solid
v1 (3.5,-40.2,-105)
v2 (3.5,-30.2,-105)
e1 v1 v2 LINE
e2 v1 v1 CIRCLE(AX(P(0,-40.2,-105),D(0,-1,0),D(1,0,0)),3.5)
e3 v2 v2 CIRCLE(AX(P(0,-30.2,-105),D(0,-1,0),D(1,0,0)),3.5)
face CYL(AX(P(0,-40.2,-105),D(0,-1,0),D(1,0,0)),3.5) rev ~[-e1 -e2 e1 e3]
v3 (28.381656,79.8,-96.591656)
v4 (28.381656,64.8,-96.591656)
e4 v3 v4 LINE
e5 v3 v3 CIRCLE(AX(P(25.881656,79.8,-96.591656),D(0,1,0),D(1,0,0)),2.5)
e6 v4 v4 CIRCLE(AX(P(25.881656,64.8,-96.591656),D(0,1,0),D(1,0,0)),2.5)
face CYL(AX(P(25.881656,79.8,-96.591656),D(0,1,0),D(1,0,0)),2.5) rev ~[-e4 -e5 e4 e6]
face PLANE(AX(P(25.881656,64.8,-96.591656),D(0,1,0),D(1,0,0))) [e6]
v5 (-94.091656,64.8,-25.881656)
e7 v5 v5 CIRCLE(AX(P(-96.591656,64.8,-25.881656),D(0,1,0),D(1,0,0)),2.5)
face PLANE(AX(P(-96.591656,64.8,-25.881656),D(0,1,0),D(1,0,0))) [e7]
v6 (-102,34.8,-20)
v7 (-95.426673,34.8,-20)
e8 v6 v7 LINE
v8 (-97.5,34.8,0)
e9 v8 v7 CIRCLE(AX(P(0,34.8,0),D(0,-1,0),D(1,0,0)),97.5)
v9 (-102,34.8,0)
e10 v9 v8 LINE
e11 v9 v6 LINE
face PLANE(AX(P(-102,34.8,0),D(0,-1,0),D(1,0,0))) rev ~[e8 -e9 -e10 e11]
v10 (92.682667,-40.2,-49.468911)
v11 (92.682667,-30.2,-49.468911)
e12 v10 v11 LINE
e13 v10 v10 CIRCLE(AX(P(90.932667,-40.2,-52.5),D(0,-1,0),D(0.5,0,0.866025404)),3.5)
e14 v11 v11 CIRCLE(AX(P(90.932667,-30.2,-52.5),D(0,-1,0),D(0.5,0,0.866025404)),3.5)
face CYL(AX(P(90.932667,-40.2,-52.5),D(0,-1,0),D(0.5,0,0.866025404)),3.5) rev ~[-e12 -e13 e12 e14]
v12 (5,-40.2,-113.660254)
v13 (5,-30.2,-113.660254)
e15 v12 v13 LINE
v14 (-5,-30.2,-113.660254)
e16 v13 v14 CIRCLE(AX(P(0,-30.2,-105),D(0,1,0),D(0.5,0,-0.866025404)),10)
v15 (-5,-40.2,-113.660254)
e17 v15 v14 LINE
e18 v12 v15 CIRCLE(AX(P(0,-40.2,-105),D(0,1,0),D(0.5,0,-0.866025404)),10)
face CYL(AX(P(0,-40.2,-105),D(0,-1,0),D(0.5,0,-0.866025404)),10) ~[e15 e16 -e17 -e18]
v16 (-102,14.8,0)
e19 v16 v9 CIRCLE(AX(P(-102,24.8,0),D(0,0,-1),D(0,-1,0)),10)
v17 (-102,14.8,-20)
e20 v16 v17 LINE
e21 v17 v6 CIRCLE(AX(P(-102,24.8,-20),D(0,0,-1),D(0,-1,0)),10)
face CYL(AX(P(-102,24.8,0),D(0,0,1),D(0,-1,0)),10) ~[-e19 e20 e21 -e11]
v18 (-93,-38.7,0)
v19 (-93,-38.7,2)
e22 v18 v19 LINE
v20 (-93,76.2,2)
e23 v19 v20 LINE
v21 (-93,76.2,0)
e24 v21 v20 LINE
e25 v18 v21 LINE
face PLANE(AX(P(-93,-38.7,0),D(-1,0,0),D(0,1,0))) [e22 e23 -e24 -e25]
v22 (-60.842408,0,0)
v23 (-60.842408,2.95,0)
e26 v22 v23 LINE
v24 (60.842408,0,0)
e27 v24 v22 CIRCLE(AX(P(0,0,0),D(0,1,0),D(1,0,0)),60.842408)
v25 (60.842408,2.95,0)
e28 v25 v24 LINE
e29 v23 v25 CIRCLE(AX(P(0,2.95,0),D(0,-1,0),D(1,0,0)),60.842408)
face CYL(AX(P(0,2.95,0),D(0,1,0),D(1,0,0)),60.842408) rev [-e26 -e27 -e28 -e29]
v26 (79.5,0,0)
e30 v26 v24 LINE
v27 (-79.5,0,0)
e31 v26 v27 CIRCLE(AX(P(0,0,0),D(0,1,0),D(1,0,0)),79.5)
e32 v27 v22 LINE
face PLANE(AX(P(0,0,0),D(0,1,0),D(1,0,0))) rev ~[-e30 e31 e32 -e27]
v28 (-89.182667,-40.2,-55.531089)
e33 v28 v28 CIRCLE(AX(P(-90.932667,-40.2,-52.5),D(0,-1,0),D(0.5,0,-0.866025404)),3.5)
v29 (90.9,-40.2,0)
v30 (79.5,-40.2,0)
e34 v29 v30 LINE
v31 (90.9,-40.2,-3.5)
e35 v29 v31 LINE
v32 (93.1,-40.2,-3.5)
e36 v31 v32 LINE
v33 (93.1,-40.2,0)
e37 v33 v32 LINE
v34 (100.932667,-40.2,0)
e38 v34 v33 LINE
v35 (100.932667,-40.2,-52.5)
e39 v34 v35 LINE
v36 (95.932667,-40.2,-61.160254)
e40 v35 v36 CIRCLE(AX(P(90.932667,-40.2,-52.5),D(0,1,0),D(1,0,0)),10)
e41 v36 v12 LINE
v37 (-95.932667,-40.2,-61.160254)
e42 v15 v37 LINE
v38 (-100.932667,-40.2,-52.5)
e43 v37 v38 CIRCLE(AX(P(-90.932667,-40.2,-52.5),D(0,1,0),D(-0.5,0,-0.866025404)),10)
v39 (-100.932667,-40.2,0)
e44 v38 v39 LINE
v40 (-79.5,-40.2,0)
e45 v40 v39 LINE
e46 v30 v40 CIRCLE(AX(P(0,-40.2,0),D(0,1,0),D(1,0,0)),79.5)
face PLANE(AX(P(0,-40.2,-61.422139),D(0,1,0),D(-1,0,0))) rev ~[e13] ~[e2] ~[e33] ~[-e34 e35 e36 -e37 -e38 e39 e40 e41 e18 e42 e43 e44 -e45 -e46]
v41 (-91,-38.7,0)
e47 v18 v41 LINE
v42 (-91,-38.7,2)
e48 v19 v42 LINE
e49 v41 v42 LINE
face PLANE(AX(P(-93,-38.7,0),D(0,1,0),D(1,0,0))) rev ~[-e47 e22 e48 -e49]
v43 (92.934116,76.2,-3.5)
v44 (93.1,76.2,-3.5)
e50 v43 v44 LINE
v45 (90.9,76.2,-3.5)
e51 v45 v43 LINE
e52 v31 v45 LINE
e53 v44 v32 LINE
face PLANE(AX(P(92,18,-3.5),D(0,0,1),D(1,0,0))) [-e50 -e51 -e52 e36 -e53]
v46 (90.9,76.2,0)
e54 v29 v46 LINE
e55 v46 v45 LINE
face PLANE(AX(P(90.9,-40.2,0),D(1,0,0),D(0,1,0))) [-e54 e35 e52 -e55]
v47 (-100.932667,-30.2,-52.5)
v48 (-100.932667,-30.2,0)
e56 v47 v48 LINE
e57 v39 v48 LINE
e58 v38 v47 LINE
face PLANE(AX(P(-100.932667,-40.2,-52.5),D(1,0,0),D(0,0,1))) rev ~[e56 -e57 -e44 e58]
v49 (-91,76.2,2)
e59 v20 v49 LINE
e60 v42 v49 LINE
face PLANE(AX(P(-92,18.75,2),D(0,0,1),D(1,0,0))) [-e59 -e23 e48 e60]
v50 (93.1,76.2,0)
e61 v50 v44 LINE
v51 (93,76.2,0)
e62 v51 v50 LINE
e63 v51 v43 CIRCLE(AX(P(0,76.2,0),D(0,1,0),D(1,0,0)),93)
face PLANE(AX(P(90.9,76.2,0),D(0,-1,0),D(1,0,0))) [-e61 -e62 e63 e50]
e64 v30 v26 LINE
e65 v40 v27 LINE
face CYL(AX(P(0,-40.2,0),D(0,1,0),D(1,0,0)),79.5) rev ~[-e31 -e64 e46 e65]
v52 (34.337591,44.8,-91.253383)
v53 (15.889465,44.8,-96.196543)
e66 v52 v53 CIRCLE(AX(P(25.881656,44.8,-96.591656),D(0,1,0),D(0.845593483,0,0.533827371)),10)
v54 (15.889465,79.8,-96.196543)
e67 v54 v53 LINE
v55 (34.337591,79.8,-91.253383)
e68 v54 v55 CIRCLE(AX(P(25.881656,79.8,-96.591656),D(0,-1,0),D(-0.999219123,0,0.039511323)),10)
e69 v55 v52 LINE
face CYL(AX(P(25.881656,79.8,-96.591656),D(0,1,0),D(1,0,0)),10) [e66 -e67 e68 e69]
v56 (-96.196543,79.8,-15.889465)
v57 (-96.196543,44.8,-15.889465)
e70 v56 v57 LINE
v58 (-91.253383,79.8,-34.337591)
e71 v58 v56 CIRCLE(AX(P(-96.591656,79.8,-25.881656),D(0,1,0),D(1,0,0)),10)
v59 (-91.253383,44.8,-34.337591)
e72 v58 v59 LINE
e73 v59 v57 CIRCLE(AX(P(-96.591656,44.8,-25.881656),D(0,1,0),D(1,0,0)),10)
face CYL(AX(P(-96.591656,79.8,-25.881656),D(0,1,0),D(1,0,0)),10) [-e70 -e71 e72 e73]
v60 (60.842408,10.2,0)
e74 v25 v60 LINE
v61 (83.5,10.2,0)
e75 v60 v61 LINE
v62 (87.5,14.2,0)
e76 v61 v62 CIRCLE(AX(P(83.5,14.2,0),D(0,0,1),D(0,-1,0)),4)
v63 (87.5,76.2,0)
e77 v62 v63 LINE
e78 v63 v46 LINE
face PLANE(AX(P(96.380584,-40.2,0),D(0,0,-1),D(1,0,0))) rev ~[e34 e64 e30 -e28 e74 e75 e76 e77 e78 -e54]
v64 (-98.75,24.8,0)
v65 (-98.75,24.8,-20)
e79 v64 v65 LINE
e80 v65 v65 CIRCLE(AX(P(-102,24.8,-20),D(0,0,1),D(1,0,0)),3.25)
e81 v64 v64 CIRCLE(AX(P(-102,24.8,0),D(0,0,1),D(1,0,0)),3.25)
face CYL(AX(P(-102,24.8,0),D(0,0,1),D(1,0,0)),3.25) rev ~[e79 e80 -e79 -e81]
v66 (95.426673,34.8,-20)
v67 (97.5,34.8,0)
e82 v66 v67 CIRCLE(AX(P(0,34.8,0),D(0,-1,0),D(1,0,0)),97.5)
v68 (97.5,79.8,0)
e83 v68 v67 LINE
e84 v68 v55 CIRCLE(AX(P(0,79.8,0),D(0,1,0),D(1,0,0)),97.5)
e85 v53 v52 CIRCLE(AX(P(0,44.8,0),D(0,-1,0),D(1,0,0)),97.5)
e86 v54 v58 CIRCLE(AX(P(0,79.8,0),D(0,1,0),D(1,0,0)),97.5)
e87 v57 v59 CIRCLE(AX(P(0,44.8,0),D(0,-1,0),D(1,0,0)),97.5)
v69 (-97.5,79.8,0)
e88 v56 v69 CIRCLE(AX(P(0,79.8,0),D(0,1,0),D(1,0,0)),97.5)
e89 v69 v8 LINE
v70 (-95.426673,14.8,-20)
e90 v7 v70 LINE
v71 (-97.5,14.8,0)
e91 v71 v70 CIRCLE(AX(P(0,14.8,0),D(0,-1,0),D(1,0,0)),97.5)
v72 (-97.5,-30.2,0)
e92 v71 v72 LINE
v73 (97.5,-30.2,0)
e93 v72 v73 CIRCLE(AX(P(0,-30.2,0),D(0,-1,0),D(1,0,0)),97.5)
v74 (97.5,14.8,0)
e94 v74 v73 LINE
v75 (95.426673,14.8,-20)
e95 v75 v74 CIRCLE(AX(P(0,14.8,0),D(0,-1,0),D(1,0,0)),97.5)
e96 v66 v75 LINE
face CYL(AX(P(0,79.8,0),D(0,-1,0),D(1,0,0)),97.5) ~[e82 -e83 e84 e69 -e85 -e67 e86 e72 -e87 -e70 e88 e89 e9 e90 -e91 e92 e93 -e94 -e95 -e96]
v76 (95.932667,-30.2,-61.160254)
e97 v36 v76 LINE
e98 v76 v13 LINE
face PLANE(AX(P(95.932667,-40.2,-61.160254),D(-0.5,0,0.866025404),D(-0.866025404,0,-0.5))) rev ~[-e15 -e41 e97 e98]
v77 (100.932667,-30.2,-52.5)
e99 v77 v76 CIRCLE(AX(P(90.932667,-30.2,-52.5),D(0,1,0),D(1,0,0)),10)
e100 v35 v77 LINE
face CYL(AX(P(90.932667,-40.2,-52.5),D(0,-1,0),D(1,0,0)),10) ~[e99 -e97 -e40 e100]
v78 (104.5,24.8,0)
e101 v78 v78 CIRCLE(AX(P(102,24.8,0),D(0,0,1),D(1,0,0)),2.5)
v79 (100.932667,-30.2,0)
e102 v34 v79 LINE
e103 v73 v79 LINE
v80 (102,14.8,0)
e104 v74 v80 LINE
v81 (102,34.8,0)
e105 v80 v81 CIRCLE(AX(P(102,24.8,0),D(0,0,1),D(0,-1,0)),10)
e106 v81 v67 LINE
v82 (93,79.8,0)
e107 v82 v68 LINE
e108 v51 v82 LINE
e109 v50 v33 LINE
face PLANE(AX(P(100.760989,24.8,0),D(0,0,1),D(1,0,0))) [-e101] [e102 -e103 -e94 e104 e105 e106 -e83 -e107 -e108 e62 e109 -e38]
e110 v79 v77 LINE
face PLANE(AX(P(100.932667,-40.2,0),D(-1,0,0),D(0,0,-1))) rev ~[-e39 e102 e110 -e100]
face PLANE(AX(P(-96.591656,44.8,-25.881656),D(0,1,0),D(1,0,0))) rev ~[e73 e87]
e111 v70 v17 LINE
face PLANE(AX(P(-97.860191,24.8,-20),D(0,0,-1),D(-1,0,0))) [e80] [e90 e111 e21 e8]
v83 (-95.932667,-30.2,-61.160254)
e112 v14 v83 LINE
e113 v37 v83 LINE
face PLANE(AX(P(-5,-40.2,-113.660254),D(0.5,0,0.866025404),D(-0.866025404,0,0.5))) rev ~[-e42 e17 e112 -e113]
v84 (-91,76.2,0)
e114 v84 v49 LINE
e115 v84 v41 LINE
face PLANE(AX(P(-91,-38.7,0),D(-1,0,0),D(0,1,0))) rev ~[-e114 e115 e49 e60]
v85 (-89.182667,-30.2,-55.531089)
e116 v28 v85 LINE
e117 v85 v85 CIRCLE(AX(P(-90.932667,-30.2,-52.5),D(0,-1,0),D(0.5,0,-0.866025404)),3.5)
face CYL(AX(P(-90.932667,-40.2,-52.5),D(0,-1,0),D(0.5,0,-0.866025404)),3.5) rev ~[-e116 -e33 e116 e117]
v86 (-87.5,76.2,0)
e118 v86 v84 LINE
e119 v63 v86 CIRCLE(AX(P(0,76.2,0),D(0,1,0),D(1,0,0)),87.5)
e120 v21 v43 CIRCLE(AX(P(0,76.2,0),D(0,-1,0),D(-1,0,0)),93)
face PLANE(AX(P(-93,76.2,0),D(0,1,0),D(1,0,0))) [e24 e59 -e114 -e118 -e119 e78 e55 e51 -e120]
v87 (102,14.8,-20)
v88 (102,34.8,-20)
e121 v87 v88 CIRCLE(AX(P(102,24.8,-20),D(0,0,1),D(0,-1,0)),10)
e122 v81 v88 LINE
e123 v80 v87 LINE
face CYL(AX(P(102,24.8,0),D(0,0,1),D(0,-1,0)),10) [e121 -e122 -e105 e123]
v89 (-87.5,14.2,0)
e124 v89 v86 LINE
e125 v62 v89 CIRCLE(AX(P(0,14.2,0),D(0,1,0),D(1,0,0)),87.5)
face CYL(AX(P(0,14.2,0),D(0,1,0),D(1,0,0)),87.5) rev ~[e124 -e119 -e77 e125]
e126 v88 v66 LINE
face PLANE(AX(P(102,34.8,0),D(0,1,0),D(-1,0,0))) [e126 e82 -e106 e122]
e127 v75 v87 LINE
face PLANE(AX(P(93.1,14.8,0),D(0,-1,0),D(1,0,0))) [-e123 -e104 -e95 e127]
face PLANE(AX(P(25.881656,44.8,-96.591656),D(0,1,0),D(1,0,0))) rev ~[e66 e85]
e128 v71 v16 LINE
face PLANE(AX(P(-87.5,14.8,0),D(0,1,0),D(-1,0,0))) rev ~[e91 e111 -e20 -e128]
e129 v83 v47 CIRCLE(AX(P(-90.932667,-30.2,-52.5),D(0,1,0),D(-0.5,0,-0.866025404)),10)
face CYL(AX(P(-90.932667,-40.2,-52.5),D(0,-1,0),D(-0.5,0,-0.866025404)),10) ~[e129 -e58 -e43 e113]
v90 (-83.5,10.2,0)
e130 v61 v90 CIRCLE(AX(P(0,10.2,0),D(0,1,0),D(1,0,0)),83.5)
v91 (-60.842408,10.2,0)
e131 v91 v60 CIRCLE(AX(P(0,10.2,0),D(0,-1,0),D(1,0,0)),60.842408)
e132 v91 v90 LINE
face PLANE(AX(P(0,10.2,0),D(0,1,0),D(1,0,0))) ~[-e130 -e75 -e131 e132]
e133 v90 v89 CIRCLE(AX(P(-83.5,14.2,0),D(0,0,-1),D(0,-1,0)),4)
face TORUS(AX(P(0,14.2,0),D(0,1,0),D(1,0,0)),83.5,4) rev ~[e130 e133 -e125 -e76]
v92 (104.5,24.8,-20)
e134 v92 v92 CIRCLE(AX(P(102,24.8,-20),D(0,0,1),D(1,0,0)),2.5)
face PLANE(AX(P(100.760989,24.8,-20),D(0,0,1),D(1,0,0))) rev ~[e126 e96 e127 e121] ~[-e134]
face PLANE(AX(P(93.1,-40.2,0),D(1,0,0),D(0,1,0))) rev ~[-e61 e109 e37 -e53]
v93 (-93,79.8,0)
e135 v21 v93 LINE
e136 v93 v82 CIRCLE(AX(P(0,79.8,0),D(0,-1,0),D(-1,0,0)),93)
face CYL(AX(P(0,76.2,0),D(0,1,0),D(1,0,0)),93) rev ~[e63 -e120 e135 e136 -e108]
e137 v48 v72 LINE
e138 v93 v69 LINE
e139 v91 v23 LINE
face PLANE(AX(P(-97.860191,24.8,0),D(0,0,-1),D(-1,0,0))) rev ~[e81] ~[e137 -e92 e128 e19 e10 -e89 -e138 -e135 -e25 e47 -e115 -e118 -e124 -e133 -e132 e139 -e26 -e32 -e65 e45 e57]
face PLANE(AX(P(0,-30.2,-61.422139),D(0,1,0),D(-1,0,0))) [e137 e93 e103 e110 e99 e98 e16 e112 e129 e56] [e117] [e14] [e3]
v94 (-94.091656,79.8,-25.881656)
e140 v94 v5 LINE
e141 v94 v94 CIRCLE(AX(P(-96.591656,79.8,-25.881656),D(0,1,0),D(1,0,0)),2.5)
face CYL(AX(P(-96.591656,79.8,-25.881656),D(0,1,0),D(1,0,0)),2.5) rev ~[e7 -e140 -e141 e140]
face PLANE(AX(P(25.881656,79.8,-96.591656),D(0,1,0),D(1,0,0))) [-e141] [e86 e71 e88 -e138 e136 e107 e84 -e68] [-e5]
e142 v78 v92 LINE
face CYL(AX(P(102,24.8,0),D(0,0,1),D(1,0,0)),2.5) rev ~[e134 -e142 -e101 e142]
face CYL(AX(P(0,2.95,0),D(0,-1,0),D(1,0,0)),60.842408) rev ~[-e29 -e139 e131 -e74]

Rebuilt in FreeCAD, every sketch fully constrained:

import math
import FreeCAD as App
import Part
import Sketcher
from FreeCAD import Vector
Q = App.Units.Quantity


def add_polygon(sketch, points):
    """Adds a closed chain of lines whose ends are joined by coincident constraints."""
    first, n = sketch.GeometryCount, len(points)
    for a, b in zip(points, points[1:] + points[:1]):
        sketch.addGeometry(Part.LineSegment(App.Vector(*a, 0), App.Vector(*b, 0)), False)
    for i in range(n):
        sketch.addConstraint(Sketcher.Constraint("Coincident", first + i, 2, first + (i + 1) % n, 1))

doc = App.newDocument("Part")
body = doc.addObject("PartDesign::Body", "Body")

sketch1 = body.newObject("Sketcher::SketchObject", "Sketch")
sketch1.AttachmentSupport = (doc.getObject("XY_Plane"), [""])
sketch1.MapMode = "FlatFace"
sketch1.addGeometry(Part.LineSegment(Vector(97.5, -40.2, 0), Vector(97.5, 79.8, 0)), False)
sketch1.addGeometry(Part.LineSegment(Vector(97.5, 79.8, 0), Vector(93, 79.8, 0)), False)
sketch1.addGeometry(Part.LineSegment(Vector(93, 79.8, 0), Vector(93, 76.2, 0)), False)
sketch1.addGeometry(Part.LineSegment(Vector(93, 76.2, 0), Vector(87.5, 76.2, 0)), False)
sketch1.addGeometry(Part.LineSegment(Vector(87.5, 76.2, 0), Vector(87.5, 14.2, 0)), False)
sketch1.addGeometry(Part.ArcOfCircle(Part.Circle(Vector(83.5, 14.2, 0), Vector(0, 0, 1), 4), math.radians(-90), math.radians(0)), False)
sketch1.addGeometry(Part.LineSegment(Vector(83.5, 10.2, 0), Vector(55.5, 10.2, 0)), False)
sketch1.addGeometry(Part.LineSegment(Vector(55.5, 10.2, 0), Vector(38.8, 26.9, 0)), False)
sketch1.addGeometry(Part.LineSegment(Vector(38.8, 26.9, 0), Vector(38.8, 44.96, 0)), False)
sketch1.addGeometry(Part.LineSegment(Vector(38.8, 44.96, 0), Vector(32.3, 44.96, 0)), False)
sketch1.addGeometry(Part.LineSegment(Vector(32.3, 44.96, 0), Vector(31.3, 43.96, 0)), False)
sketch1.addGeometry(Part.LineSegment(Vector(31.3, 43.96, 0), Vector(31.3, 25.96, 0)), False)
sketch1.addGeometry(Part.LineSegment(Vector(31.3, 25.96, 0), Vector(27.63, 25.96, 0)), False)
sketch1.addGeometry(Part.LineSegment(Vector(27.63, 25.96, 0), Vector(19.3, 21.2, 0)), False)
sketch1.addGeometry(Part.LineSegment(Vector(19.3, 21.2, 0), Vector(19.3, 21.05, 0)), False)
sketch1.addGeometry(Part.LineSegment(Vector(19.3, 21.05, 0), Vector(15.3, 21.05, 0)), False)
sketch1.addGeometry(Part.LineSegment(Vector(15.3, 21.05, 0), Vector(15.3, 17.7, 0)), False)
sketch1.addGeometry(Part.LineSegment(Vector(15.3, 17.7, 0), Vector(19.3, 17.7, 0)), False)
sketch1.addGeometry(Part.LineSegment(Vector(19.3, 17.7, 0), Vector(19.3, 17, 0)), False)
sketch1.addGeometry(Part.LineSegment(Vector(19.3, 17, 0), Vector(22.6, 17, 0)), False)
sketch1.addGeometry(Part.LineSegment(Vector(22.6, 17, 0), Vector(22.6, 13.7, 0)), False)
sketch1.addGeometry(Part.LineSegment(Vector(22.6, 13.7, 0), Vector(31, 13.7, 0)), False)
sketch1.addGeometry(Part.LineSegment(Vector(31, 13.7, 0), Vector(31, 10.95, 0)), False)
sketch1.addGeometry(Part.LineSegment(Vector(31, 10.95, 0), Vector(44, 10.95, 0)), False)
sketch1.addGeometry(Part.LineSegment(Vector(44, 10.95, 0), Vector(52, 2.95, 0)), False)
sketch1.addGeometry(Part.LineSegment(Vector(52, 2.95, 0), Vector(60.34, 2.95, 0)), False)
sketch1.addGeometry(Part.LineSegment(Vector(60.34, 2.95, 0), Vector(60.34, 0, 0)), False)
sketch1.addGeometry(Part.LineSegment(Vector(60.34, 0, 0), Vector(79.5, 0, 0)), False)
sketch1.addGeometry(Part.LineSegment(Vector(79.5, 0, 0), Vector(79.5, -40.2, 0)), False)
sketch1.addGeometry(Part.LineSegment(Vector(79.5, -40.2, 0), Vector(97.5, -40.2, 0)), False)
sketch1.addConstraint(Sketcher.Constraint("Coincident", 0, 2, 1, 1))
sketch1.addConstraint(Sketcher.Constraint("Coincident", 1, 2, 2, 1))
sketch1.addConstraint(Sketcher.Constraint("Coincident", 2, 2, 3, 1))
sketch1.addConstraint(Sketcher.Constraint("Coincident", 3, 2, 4, 1))
sketch1.addConstraint(Sketcher.Constraint("Tangent", 4, 2, 5, 2))
sketch1.addConstraint(Sketcher.Constraint("Tangent", 5, 1, 6, 1))
sketch1.addConstraint(Sketcher.Constraint("Coincident", 6, 2, 7, 1))
sketch1.addConstraint(Sketcher.Constraint("Coincident", 7, 2, 8, 1))
sketch1.addConstraint(Sketcher.Constraint("Coincident", 8, 2, 9, 1))
sketch1.addConstraint(Sketcher.Constraint("Coincident", 9, 2, 10, 1))
sketch1.addConstraint(Sketcher.Constraint("Coincident", 10, 2, 11, 1))
sketch1.addConstraint(Sketcher.Constraint("Coincident", 11, 2, 12, 1))
sketch1.addConstraint(Sketcher.Constraint("Coincident", 12, 2, 13, 1))
sketch1.addConstraint(Sketcher.Constraint("Coincident", 13, 2, 14, 1))
sketch1.addConstraint(Sketcher.Constraint("Coincident", 14, 2, 15, 1))
sketch1.addConstraint(Sketcher.Constraint("Coincident", 15, 2, 16, 1))
sketch1.addConstraint(Sketcher.Constraint("Coincident", 16, 2, 17, 1))
sketch1.addConstraint(Sketcher.Constraint("Coincident", 17, 2, 18, 1))
sketch1.addConstraint(Sketcher.Constraint("Coincident", 18, 2, 19, 1))
sketch1.addConstraint(Sketcher.Constraint("Coincident", 19, 2, 20, 1))
sketch1.addConstraint(Sketcher.Constraint("Coincident", 20, 2, 21, 1))
sketch1.addConstraint(Sketcher.Constraint("Coincident", 21, 2, 22, 1))
sketch1.addConstraint(Sketcher.Constraint("Coincident", 22, 2, 23, 1))
sketch1.addConstraint(Sketcher.Constraint("Coincident", 23, 2, 24, 1))
sketch1.addConstraint(Sketcher.Constraint("Coincident", 24, 2, 25, 1))
sketch1.addConstraint(Sketcher.Constraint("Coincident", 25, 2, 26, 1))
sketch1.addConstraint(Sketcher.Constraint("Coincident", 26, 2, 27, 1))
sketch1.addConstraint(Sketcher.Constraint("Coincident", 27, 2, 28, 1))
sketch1.addConstraint(Sketcher.Constraint("Coincident", 28, 2, 29, 1))
sketch1.addConstraint(Sketcher.Constraint("Coincident", 29, 2, 0, 1))
sketch1.addConstraint(Sketcher.Constraint("Vertical", 0))
sketch1.addConstraint(Sketcher.Constraint("Horizontal", 1))
sketch1.addConstraint(Sketcher.Constraint("Vertical", 2))
sketch1.addConstraint(Sketcher.Constraint("Horizontal", 3))
sketch1.addConstraint(Sketcher.Constraint("Vertical", 4))
sketch1.addConstraint(Sketcher.Constraint("Horizontal", 6))
sketch1.addConstraint(Sketcher.Constraint("Vertical", 8))
sketch1.addConstraint(Sketcher.Constraint("Horizontal", 9))
sketch1.addConstraint(Sketcher.Constraint("Vertical", 11))
sketch1.addConstraint(Sketcher.Constraint("Horizontal", 12))
sketch1.addConstraint(Sketcher.Constraint("Vertical", 14))
sketch1.addConstraint(Sketcher.Constraint("Horizontal", 15))
sketch1.addConstraint(Sketcher.Constraint("Vertical", 16))
sketch1.addConstraint(Sketcher.Constraint("Horizontal", 17))
sketch1.addConstraint(Sketcher.Constraint("Vertical", 18))
sketch1.addConstraint(Sketcher.Constraint("Horizontal", 19))
sketch1.addConstraint(Sketcher.Constraint("Vertical", 20))
sketch1.addConstraint(Sketcher.Constraint("Horizontal", 21))
sketch1.addConstraint(Sketcher.Constraint("Vertical", 22))
sketch1.addConstraint(Sketcher.Constraint("Horizontal", 23))
sketch1.addConstraint(Sketcher.Constraint("Horizontal", 25))
sketch1.addConstraint(Sketcher.Constraint("Vertical", 26))
sketch1.addConstraint(Sketcher.Constraint("Horizontal", 27))
sketch1.addConstraint(Sketcher.Constraint("Vertical", 28))
sketch1.addConstraint(Sketcher.Constraint("Horizontal", 29))
sketch1.addConstraint(Sketcher.Constraint("PointOnObject", 26, 2, -1))
sketch1.addConstraint(Sketcher.Constraint("Perpendicular", 7, 10))
sketch1.addConstraint(Sketcher.Constraint("Perpendicular", 10, 24))
sketch1.addConstraint(Sketcher.Constraint("Vertical", 14, 2, 17, 2))
sketch1.addConstraint(Sketcher.Constraint("Equal", 29, 11))
sketch1.addConstraint(Sketcher.Constraint("Equal", 19, 20))
sketch1.addConstraint(Sketcher.Constraint("Radius", 5, Q("4 mm")))
sketch1.addConstraint(Sketcher.Constraint("DistanceX", 6, 2, 6, 1, Q("28 mm")))
sketch1.addConstraint(Sketcher.Constraint("DistanceX", 15, 2, 15, 1, Q("4 mm")))
sketch1.addConstraint(Sketcher.Constraint("DistanceX", 23, 1, 23, 2, Q("13 mm")))
sketch1.addConstraint(Sketcher.Constraint("DistanceX", 29, 1, 29, 2, Q("18 mm")))
sketch1.addConstraint(Sketcher.Constraint("DistanceY", 0, 1, 0, 2, Q("120 mm")))
sketch1.addConstraint(Sketcher.Constraint("DistanceY", 4, 2, 4, 1, Q("62 mm")))
sketch1.addConstraint(Sketcher.Constraint("Angle", 7, Q("135 deg")))
sketch1.addConstraint(Sketcher.Constraint("DistanceX", 1, 2, 1, 1, Q("4.5 mm")))
sketch1.addConstraint(Sketcher.Constraint("DistanceX", 3, 2, 3, 1, Q("5.5 mm")))
sketch1.addConstraint(Sketcher.Constraint("DistanceX", 9, 2, 9, 1, Q("6.5 mm")))
sketch1.addConstraint(Sketcher.Constraint("DistanceX", 19, 1, 19, 2, Q("3.3 mm")))
sketch1.addConstraint(Sketcher.Constraint("DistanceX", 21, 1, 21, 2, Q("8.4 mm")))
sketch1.addConstraint(Sketcher.Constraint("DistanceY", 2, 2, 2, 1, Q("3.6 mm")))
sketch1.addConstraint(Sketcher.Constraint("DistanceY", 18, 2, 18, 1, Q("0.7 mm")))
sketch1.addConstraint(Sketcher.Constraint("DistanceY", 28, 2, 28, 1, Q("40.2 mm")))
sketch1.addConstraint(Sketcher.Constraint("DistanceX", -1, 1, 1, 2, Q("93 mm")))
sketch1.addConstraint(Sketcher.Constraint("DistanceY", -1, 1, 18, 2, Q("17 mm")))
sketch1.addConstraint(Sketcher.Constraint("DistanceX", -1, 1, 21, 2, Q("31 mm")))
sketch1.addConstraint(Sketcher.Constraint("DistanceX", -1, 1, 24, 2, Q("52 mm")))
sketch1.addConstraint(Sketcher.Constraint("DistanceX", 10, 2, 9, 2, Q("1 mm")))
sketch1.addConstraint(Sketcher.Constraint("DistanceX", 13, 2, 11, 2, Q("12 mm")))
sketch1.addConstraint(Sketcher.Constraint("DistanceY", 8, 1, 8, 2, Q("18.06 mm")))
sketch1.addConstraint(Sketcher.Constraint("DistanceY", 14, 2, 14, 1, Q("0.15 mm")))
sketch1.addConstraint(Sketcher.Constraint("DistanceY", 16, 2, 16, 1, Q("3.35 mm")))
sketch1.addConstraint(Sketcher.Constraint("DistanceY", 22, 2, 22, 1, Q("2.75 mm")))
sketch1.addConstraint(Sketcher.Constraint("DistanceX", 12, 2, 12, 1, Q("3.673451 mm")))
sketch1.addConstraint(Sketcher.Constraint("DistanceX", 25, 1, 25, 2, Q("8.342408 mm")))
revolution = body.newObject("PartDesign::Revolution", "Revolution")
revolution.Profile = sketch1
revolution.ReferenceAxis = (sketch1, ["V_Axis"])
revolution.Angle = 180

sketch2 = body.newObject("Sketcher::SketchObject", "Sketch001")
sketch2.AttachmentSupport = (doc.getObject("XZ_Plane"), [""])
sketch2.MapMode = "FlatFace"
sketch2.AttachmentOffset = App.Placement(Vector(0, 0, -79.8), App.Rotation())
sketch2.addGeometry(Part.Circle(Vector(26, -97, 0), Vector(0, 0, 1), 10), False)
sketch2.addGeometry(Part.Circle(Vector(-97, -26, 0), Vector(0, 0, 1), 10), False)
sketch2.addConstraint(Sketcher.Constraint("Equal", 0, 1))
sketch2.addConstraint(Sketcher.Constraint("Diameter", 0, Q("20 mm")))
sketch2.addConstraint(Sketcher.Constraint("DistanceY", 0, 3, 1, 3, Q("70.71 mm")))
sketch2.addConstraint(Sketcher.Constraint("DistanceX", -1, 1, 0, 3, Q("25.881656 mm")))
sketch2.addConstraint(Sketcher.Constraint("DistanceY", 0, 3, -1, 1, Q("96.591656 mm")))
sketch2.addConstraint(Sketcher.Constraint("DistanceX", 1, 3, -1, 1, Q("96.591656 mm")))
pad1 = body.newObject("PartDesign::Pad", "Pad")
pad1.Profile = sketch2
pad1.Length = 35

sketch3 = body.newObject("Sketcher::SketchObject", "Sketch002")
sketch3.AttachmentSupport = (doc.getObject("XZ_Plane"), [""])
sketch3.MapMode = "FlatFace"
sketch3.AttachmentOffset = App.Placement(Vector(0, 0, 40.2), App.Rotation())
sketch3.addGeometry(Part.LineSegment(Vector(5, -113.7, 0), Vector(95.9, -61.2, 0)), False)
sketch3.addGeometry(Part.ArcOfCircle(Part.Circle(Vector(90.9, -52.5, 0), Vector(0, 0, 1), 10), math.radians(-60), math.radians(0)), False)
sketch3.addGeometry(Part.LineSegment(Vector(100.9, -52.5, 0), Vector(100.9, 0, 0)), False)
sketch3.addGeometry(Part.LineSegment(Vector(100.9, 0, 0), Vector(96.4, 0, 0)), False)
sketch3.addGeometry(Part.ArcOfCircle(Part.Circle(Vector(0, 0, 0), Vector(0, 0, 1), 96.4), math.radians(180), math.radians(360)), False)
sketch3.addGeometry(Part.LineSegment(Vector(-96.4, 0, 0), Vector(-100.9, 0, 0)), False)
sketch3.addGeometry(Part.LineSegment(Vector(-100.9, 0, 0), Vector(-100.9, -52.5, 0)), False)
sketch3.addGeometry(Part.ArcOfCircle(Part.Circle(Vector(-90.9, -52.5, 0), Vector(0, 0, 1), 10), math.radians(180), math.radians(240)), False)
sketch3.addGeometry(Part.LineSegment(Vector(-95.9, -61.2, 0), Vector(-5, -113.7, 0)), False)
sketch3.addGeometry(Part.ArcOfCircle(Part.Circle(Vector(0, -105, 0), Vector(0, 0, 1), 10), math.radians(-120), math.radians(-60)), False)
sketch3.addConstraint(Sketcher.Constraint("Tangent", 0, 2, 1, 1))
sketch3.addConstraint(Sketcher.Constraint("Tangent", 1, 2, 2, 1))
sketch3.addConstraint(Sketcher.Constraint("Coincident", 2, 2, 3, 1))
sketch3.addConstraint(Sketcher.Constraint("Coincident", 3, 2, 4, 2))
sketch3.addConstraint(Sketcher.Constraint("Coincident", 4, 1, 5, 1))
sketch3.addConstraint(Sketcher.Constraint("Coincident", 5, 2, 6, 1))
sketch3.addConstraint(Sketcher.Constraint("Tangent", 6, 2, 7, 1))
sketch3.addConstraint(Sketcher.Constraint("Tangent", 7, 2, 8, 1))
sketch3.addConstraint(Sketcher.Constraint("Tangent", 8, 2, 9, 1))
sketch3.addConstraint(Sketcher.Constraint("Tangent", 9, 2, 0, 1))
sketch3.addConstraint(Sketcher.Constraint("Vertical", 2))
sketch3.addConstraint(Sketcher.Constraint("Horizontal", 3))
sketch3.addConstraint(Sketcher.Constraint("Horizontal", 5))
sketch3.addConstraint(Sketcher.Constraint("Vertical", 6))
sketch3.addConstraint(Sketcher.Constraint("Coincident", 4, 3, -1, 1))
sketch3.addConstraint(Sketcher.Constraint("Equal", 1, 7))
sketch3.addConstraint(Sketcher.Constraint("Equal", 7, 9))
sketch3.addConstraint(Sketcher.Constraint("Symmetric", 2, 2, 5, 2, -1, 1))
sketch3.addConstraint(Sketcher.Constraint("Symmetric", 0, 2, 7, 2, -2))
sketch3.addConstraint(Sketcher.Constraint("PointOnObject", 2, 2, -1))
sketch3.addConstraint(Sketcher.Constraint("Radius", 1, Q("10 mm")))
sketch3.addConstraint(Sketcher.Constraint("Angle", 0, Q("30 deg")))
sketch3.addConstraint(Sketcher.Constraint("Distance", 0, Q("105 mm")))
sketch3.addConstraint(Sketcher.Constraint("DistanceY", 2, 1, 2, 2, Q("52.5 mm")))
sketch3.addConstraint(Sketcher.Constraint("Radius", 4, Q("96.380584 mm")))
pad2 = body.newObject("PartDesign::Pad", "Pad001")
pad2.Profile = sketch3
pad2.Length = 10
pad2.Reversed = True

sketch4 = body.newObject("Sketcher::SketchObject", "Sketch003")
sketch4.AttachmentSupport = (doc.getObject("XZ_Plane"), [""])
sketch4.MapMode = "FlatFace"
sketch4.AttachmentOffset = App.Placement(Vector(0, 0, 40.2), App.Rotation())
sketch4.addGeometry(Part.Circle(Vector(0, -105, 0), Vector(0, 0, 1), 3.5), False)
sketch4.addConstraint(Sketcher.Constraint("PointOnObject", 0, 3, -2))
sketch4.addConstraint(Sketcher.Constraint("Diameter", 0, Q("7 mm")))
sketch4.addConstraint(Sketcher.Constraint("DistanceY", 0, 3, -1, 1, Q("105 mm")))
pocket1 = body.newObject("PartDesign::Pocket", "Pocket")
pocket1.Profile = sketch4
pocket1.Length = 20
doc.recompute()

polarpattern = body.newObject("PartDesign::PolarPattern", "PolarPattern")
polarpattern.Originals = [pocket1]
polarpattern.Axis = (doc.getObject("Y_Axis"), [""])
polarpattern.Angle = 360
polarpattern.Occurrences = 6
body.Tip = polarpattern

sketch5 = body.newObject("Sketcher::SketchObject", "Sketch004")
sketch5.AttachmentSupport = (doc.getObject("XZ_Plane"), [""])
sketch5.MapMode = "FlatFace"
sketch5.AttachmentOffset = App.Placement(Vector(0, 0, -79.8), App.Rotation())
sketch5.addGeometry(Part.Circle(Vector(25.9, -96.6, 0), Vector(0, 0, 1), 2.5), False)
sketch5.addGeometry(Part.Circle(Vector(-96.6, -25.9, 0), Vector(0, 0, 1), 2.5), False)
sketch5.addConstraint(Sketcher.Constraint("Equal", 0, 1))
sketch5.addConstraint(Sketcher.Constraint("Diameter", 0, Q("5 mm")))
sketch5.addConstraint(Sketcher.Constraint("DistanceY", 0, 3, 1, 3, Q("70.71 mm")))
sketch5.addConstraint(Sketcher.Constraint("DistanceX", -1, 1, 0, 3, Q("25.881656 mm")))
sketch5.addConstraint(Sketcher.Constraint("DistanceY", 0, 3, -1, 1, Q("96.591656 mm")))
sketch5.addConstraint(Sketcher.Constraint("DistanceX", 1, 3, -1, 1, Q("96.591656 mm")))
pocket2 = body.newObject("PartDesign::Pocket", "Pocket001")
pocket2.Profile = sketch5
pocket2.Length = 15
pocket2.Reversed = True

sketch6 = body.newObject("Sketcher::SketchObject", "Sketch005")
sketch6.AttachmentSupport = (doc.getObject("XZ_Plane"), [""])
sketch6.MapMode = "FlatFace"
sketch6.AttachmentOffset = App.Placement(Vector(0, 0, -13.7), App.Rotation())
sketch6.addGeometry(Part.Circle(Vector(18.7, -18.7, 0), Vector(0, 0, 1), 1.2), False)
sketch6.addGeometry(Part.Circle(Vector(-18.7, -18.7, 0), Vector(0, 0, 1), 1.2), False)
sketch6.addGeometry(Part.Circle(Vector(-18.7, 18.7, 0), Vector(0, 0, 1), 1.2), False)
sketch6.addGeometry(Part.Circle(Vector(18.7, 18.7, 0), Vector(0, 0, 1), 1.2), False)
sketch6.addConstraint(Sketcher.Constraint("Equal", 0, 1))
sketch6.addConstraint(Sketcher.Constraint("Equal", 1, 2))
sketch6.addConstraint(Sketcher.Constraint("Equal", 2, 3))
sketch6.addConstraint(Sketcher.Constraint("Symmetric", 0, 3, 2, 3, -1, 1))
sketch6.addConstraint(Sketcher.Constraint("Symmetric", 1, 3, 3, 3, -1, 1))
sketch6.addConstraint(Sketcher.Constraint("Symmetric", 0, 3, 1, 3, -2))
sketch6.addConstraint(Sketcher.Constraint("Diameter", 0, Q("2.5 mm")))
sketch6.addConstraint(Sketcher.Constraint("DistanceX", -1, 1, 0, 3, Q("18.73833 mm")))
sketch6.addConstraint(Sketcher.Constraint("DistanceY", 0, 3, -1, 1, Q("18.73833 mm")))
pocket3 = body.newObject("PartDesign::Pocket", "Pocket002")
pocket3.Profile = sketch6
pocket3.Length = 6

sketch7 = body.newObject("Sketcher::SketchObject", "Sketch006")
sketch7.AttachmentSupport = (doc.getObject("XY_Plane"), [""])
sketch7.MapMode = "FlatFace"
add_polygon(sketch7, [(90.9, 76.2), (90.9, -40.2), (93.1, -40.2), (93.1, 76.2)])
sketch7.addConstraint(Sketcher.Constraint("Vertical", 0))
sketch7.addConstraint(Sketcher.Constraint("Horizontal", 1))
sketch7.addConstraint(Sketcher.Constraint("Vertical", 2))
sketch7.addConstraint(Sketcher.Constraint("Horizontal", 3))
sketch7.addConstraint(Sketcher.Constraint("DistanceX", 1, 1, 1, 2, Q("2.2 mm")))
sketch7.addConstraint(Sketcher.Constraint("DistanceY", 0, 2, 0, 1, Q("116.4 mm")))
sketch7.addConstraint(Sketcher.Constraint("DistanceX", -1, 1, 0, 2, Q("90.9 mm")))
sketch7.addConstraint(Sketcher.Constraint("DistanceY", 0, 2, -1, 1, Q("40.2 mm")))
pocket4 = body.newObject("PartDesign::Pocket", "Pocket003")
pocket4.Profile = sketch7
pocket4.Length = 3.5

sketch8 = body.newObject("Sketcher::SketchObject", "Sketch007")
sketch8.AttachmentSupport = (doc.getObject("XY_Plane"), [""])
sketch8.MapMode = "FlatFace"
add_polygon(sketch8, [(-93, 76.2), (-93, -38.7), (-91, -38.7), (-91, 76.2)])
sketch8.addConstraint(Sketcher.Constraint("Vertical", 0))
sketch8.addConstraint(Sketcher.Constraint("Horizontal", 1))
sketch8.addConstraint(Sketcher.Constraint("Vertical", 2))
sketch8.addConstraint(Sketcher.Constraint("Horizontal", 3))
sketch8.addConstraint(Sketcher.Constraint("DistanceX", 1, 1, 1, 2, Q("2 mm")))
sketch8.addConstraint(Sketcher.Constraint("DistanceY", 0, 2, 0, 1, Q("114.9 mm")))
sketch8.addConstraint(Sketcher.Constraint("DistanceX", 0, 2, -1, 1, Q("93 mm")))
sketch8.addConstraint(Sketcher.Constraint("DistanceY", 0, 2, -1, 1, Q("38.7 mm")))
pad3 = body.newObject("PartDesign::Pad", "Pad002")
pad3.Profile = sketch8
pad3.Length = 2

sketch9 = body.newObject("Sketcher::SketchObject", "Sketch008")
sketch9.AttachmentSupport = (doc.getObject("XY_Plane"), [""])
sketch9.MapMode = "FlatFace"
sketch9.addGeometry(Part.LineSegment(Vector(-87.5, 34.8, 0), Vector(-102, 34.8, 0)), False)
sketch9.addGeometry(Part.ArcOfCircle(Part.Circle(Vector(-102, 24.8, 0), Vector(0, 0, 1), 10), math.radians(90), math.radians(270)), False)
sketch9.addGeometry(Part.LineSegment(Vector(-102, 14.8, 0), Vector(-87.5, 14.8, 0)), False)
sketch9.addGeometry(Part.LineSegment(Vector(-87.5, 14.8, 0), Vector(-87.5, 34.8, 0)), False)
sketch9.addGeometry(Part.Circle(Vector(-102, 24.8, 0), Vector(0, 0, 1), 3.2), False)
sketch9.addConstraint(Sketcher.Constraint("Tangent", 0, 2, 1, 1))
sketch9.addConstraint(Sketcher.Constraint("Tangent", 1, 2, 2, 1))
sketch9.addConstraint(Sketcher.Constraint("Coincident", 2, 2, 3, 1))
sketch9.addConstraint(Sketcher.Constraint("Coincident", 3, 2, 0, 1))
sketch9.addConstraint(Sketcher.Constraint("Horizontal", 0))
sketch9.addConstraint(Sketcher.Constraint("Horizontal", 2))
sketch9.addConstraint(Sketcher.Constraint("Vertical", 3))
sketch9.addConstraint(Sketcher.Constraint("Coincident", 4, 3, 1, 3))
sketch9.addConstraint(Sketcher.Constraint("Radius", 1, Q("10 mm")))
sketch9.addConstraint(Sketcher.Constraint("Diameter", 4, Q("6.5 mm")))
sketch9.addConstraint(Sketcher.Constraint("DistanceX", 0, 2, 0, 1, Q("14.5 mm")))
sketch9.addConstraint(Sketcher.Constraint("DistanceX", 1, 3, -1, 1, Q("102 mm")))
sketch9.addConstraint(Sketcher.Constraint("DistanceY", -1, 1, 1, 3, Q("24.8 mm")))
pad4 = body.newObject("PartDesign::Pad", "Pad003")
pad4.Profile = sketch9
pad4.Length = 20
pad4.Reversed = True

sketch10 = body.newObject("Sketcher::SketchObject", "Sketch009")
sketch10.AttachmentSupport = (doc.getObject("XY_Plane"), [""])
sketch10.MapMode = "FlatFace"
sketch10.addGeometry(Part.LineSegment(Vector(102, 34.8, 0), Vector(93.1, 34.8, 0)), False)
sketch10.addGeometry(Part.LineSegment(Vector(93.1, 34.8, 0), Vector(93.1, 14.8, 0)), False)
sketch10.addGeometry(Part.LineSegment(Vector(93.1, 14.8, 0), Vector(102, 14.8, 0)), False)
sketch10.addGeometry(Part.ArcOfCircle(Part.Circle(Vector(102, 24.8, 0), Vector(0, 0, 1), 10), math.radians(-90), math.radians(90)), False)
sketch10.addGeometry(Part.Circle(Vector(102, 24.8, 0), Vector(0, 0, 1), 2.5), False)
sketch10.addConstraint(Sketcher.Constraint("Coincident", 0, 2, 1, 1))
sketch10.addConstraint(Sketcher.Constraint("Coincident", 1, 2, 2, 1))
sketch10.addConstraint(Sketcher.Constraint("Tangent", 2, 2, 3, 1))
sketch10.addConstraint(Sketcher.Constraint("Tangent", 3, 2, 0, 1))
sketch10.addConstraint(Sketcher.Constraint("Horizontal", 0))
sketch10.addConstraint(Sketcher.Constraint("Vertical", 1))
sketch10.addConstraint(Sketcher.Constraint("Horizontal", 2))
sketch10.addConstraint(Sketcher.Constraint("Coincident", 4, 3, 3, 3))
sketch10.addConstraint(Sketcher.Constraint("Diameter", 4, Q("5 mm")))
sketch10.addConstraint(Sketcher.Constraint("Radius", 3, Q("10 mm")))
sketch10.addConstraint(Sketcher.Constraint("DistanceX", 0, 2, 0, 1, Q("8.9 mm")))
sketch10.addConstraint(Sketcher.Constraint("DistanceX", -1, 1, 3, 3, Q("102 mm")))
sketch10.addConstraint(Sketcher.Constraint("DistanceY", -1, 1, 3, 3, Q("24.8 mm")))
pad5 = body.newObject("PartDesign::Pad", "Pad004")
pad5.Profile = sketch10
pad5.Length = 20
pad5.Reversed = True

sketch11 = body.newObject("Sketcher::SketchObject", "Sketch010")
sketch11.AttachmentSupport = (doc.getObject("XZ_Plane"), [""])
sketch11.MapMode = "FlatFace"
sketch11.AttachmentOffset = App.Placement(Vector(0, 0, -76.2), App.Rotation())
sketch11.addGeometry(Part.Circle(Vector(0, 0, 0), Vector(0, 0, 1), 93), False)
sketch11.addConstraint(Sketcher.Constraint("Coincident", 0, 3, -1, 1))
sketch11.addConstraint(Sketcher.Constraint("Diameter", 0, Q("186 mm")))
pocket5 = body.newObject("PartDesign::Pocket", "Pocket004")
pocket5.Profile = sketch11
pocket5.Length = 10

sketch12 = body.newObject("Sketcher::SketchObject", "Sketch011")
sketch12.AttachmentSupport = (doc.getObject("XZ_Plane"), [""])
sketch12.MapMode = "FlatFace"
sketch12.AttachmentOffset = App.Placement(Vector(0, 0, -2.95), App.Rotation())
sketch12.addGeometry(Part.Circle(Vector(0, 0, 0), Vector(0, 0, 1), 61), False)
sketch12.addConstraint(Sketcher.Constraint("Coincident", 0, 3, -1, 1))
sketch12.addConstraint(Sketcher.Constraint("Diameter", 0, Q("121.684816 mm")))
pocket6 = body.newObject("PartDesign::Pocket", "Pocket005")
pocket6.Profile = sketch12
pocket6.Type = "ThroughAll"
pocket6.Midplane = True

doc.recompute()
